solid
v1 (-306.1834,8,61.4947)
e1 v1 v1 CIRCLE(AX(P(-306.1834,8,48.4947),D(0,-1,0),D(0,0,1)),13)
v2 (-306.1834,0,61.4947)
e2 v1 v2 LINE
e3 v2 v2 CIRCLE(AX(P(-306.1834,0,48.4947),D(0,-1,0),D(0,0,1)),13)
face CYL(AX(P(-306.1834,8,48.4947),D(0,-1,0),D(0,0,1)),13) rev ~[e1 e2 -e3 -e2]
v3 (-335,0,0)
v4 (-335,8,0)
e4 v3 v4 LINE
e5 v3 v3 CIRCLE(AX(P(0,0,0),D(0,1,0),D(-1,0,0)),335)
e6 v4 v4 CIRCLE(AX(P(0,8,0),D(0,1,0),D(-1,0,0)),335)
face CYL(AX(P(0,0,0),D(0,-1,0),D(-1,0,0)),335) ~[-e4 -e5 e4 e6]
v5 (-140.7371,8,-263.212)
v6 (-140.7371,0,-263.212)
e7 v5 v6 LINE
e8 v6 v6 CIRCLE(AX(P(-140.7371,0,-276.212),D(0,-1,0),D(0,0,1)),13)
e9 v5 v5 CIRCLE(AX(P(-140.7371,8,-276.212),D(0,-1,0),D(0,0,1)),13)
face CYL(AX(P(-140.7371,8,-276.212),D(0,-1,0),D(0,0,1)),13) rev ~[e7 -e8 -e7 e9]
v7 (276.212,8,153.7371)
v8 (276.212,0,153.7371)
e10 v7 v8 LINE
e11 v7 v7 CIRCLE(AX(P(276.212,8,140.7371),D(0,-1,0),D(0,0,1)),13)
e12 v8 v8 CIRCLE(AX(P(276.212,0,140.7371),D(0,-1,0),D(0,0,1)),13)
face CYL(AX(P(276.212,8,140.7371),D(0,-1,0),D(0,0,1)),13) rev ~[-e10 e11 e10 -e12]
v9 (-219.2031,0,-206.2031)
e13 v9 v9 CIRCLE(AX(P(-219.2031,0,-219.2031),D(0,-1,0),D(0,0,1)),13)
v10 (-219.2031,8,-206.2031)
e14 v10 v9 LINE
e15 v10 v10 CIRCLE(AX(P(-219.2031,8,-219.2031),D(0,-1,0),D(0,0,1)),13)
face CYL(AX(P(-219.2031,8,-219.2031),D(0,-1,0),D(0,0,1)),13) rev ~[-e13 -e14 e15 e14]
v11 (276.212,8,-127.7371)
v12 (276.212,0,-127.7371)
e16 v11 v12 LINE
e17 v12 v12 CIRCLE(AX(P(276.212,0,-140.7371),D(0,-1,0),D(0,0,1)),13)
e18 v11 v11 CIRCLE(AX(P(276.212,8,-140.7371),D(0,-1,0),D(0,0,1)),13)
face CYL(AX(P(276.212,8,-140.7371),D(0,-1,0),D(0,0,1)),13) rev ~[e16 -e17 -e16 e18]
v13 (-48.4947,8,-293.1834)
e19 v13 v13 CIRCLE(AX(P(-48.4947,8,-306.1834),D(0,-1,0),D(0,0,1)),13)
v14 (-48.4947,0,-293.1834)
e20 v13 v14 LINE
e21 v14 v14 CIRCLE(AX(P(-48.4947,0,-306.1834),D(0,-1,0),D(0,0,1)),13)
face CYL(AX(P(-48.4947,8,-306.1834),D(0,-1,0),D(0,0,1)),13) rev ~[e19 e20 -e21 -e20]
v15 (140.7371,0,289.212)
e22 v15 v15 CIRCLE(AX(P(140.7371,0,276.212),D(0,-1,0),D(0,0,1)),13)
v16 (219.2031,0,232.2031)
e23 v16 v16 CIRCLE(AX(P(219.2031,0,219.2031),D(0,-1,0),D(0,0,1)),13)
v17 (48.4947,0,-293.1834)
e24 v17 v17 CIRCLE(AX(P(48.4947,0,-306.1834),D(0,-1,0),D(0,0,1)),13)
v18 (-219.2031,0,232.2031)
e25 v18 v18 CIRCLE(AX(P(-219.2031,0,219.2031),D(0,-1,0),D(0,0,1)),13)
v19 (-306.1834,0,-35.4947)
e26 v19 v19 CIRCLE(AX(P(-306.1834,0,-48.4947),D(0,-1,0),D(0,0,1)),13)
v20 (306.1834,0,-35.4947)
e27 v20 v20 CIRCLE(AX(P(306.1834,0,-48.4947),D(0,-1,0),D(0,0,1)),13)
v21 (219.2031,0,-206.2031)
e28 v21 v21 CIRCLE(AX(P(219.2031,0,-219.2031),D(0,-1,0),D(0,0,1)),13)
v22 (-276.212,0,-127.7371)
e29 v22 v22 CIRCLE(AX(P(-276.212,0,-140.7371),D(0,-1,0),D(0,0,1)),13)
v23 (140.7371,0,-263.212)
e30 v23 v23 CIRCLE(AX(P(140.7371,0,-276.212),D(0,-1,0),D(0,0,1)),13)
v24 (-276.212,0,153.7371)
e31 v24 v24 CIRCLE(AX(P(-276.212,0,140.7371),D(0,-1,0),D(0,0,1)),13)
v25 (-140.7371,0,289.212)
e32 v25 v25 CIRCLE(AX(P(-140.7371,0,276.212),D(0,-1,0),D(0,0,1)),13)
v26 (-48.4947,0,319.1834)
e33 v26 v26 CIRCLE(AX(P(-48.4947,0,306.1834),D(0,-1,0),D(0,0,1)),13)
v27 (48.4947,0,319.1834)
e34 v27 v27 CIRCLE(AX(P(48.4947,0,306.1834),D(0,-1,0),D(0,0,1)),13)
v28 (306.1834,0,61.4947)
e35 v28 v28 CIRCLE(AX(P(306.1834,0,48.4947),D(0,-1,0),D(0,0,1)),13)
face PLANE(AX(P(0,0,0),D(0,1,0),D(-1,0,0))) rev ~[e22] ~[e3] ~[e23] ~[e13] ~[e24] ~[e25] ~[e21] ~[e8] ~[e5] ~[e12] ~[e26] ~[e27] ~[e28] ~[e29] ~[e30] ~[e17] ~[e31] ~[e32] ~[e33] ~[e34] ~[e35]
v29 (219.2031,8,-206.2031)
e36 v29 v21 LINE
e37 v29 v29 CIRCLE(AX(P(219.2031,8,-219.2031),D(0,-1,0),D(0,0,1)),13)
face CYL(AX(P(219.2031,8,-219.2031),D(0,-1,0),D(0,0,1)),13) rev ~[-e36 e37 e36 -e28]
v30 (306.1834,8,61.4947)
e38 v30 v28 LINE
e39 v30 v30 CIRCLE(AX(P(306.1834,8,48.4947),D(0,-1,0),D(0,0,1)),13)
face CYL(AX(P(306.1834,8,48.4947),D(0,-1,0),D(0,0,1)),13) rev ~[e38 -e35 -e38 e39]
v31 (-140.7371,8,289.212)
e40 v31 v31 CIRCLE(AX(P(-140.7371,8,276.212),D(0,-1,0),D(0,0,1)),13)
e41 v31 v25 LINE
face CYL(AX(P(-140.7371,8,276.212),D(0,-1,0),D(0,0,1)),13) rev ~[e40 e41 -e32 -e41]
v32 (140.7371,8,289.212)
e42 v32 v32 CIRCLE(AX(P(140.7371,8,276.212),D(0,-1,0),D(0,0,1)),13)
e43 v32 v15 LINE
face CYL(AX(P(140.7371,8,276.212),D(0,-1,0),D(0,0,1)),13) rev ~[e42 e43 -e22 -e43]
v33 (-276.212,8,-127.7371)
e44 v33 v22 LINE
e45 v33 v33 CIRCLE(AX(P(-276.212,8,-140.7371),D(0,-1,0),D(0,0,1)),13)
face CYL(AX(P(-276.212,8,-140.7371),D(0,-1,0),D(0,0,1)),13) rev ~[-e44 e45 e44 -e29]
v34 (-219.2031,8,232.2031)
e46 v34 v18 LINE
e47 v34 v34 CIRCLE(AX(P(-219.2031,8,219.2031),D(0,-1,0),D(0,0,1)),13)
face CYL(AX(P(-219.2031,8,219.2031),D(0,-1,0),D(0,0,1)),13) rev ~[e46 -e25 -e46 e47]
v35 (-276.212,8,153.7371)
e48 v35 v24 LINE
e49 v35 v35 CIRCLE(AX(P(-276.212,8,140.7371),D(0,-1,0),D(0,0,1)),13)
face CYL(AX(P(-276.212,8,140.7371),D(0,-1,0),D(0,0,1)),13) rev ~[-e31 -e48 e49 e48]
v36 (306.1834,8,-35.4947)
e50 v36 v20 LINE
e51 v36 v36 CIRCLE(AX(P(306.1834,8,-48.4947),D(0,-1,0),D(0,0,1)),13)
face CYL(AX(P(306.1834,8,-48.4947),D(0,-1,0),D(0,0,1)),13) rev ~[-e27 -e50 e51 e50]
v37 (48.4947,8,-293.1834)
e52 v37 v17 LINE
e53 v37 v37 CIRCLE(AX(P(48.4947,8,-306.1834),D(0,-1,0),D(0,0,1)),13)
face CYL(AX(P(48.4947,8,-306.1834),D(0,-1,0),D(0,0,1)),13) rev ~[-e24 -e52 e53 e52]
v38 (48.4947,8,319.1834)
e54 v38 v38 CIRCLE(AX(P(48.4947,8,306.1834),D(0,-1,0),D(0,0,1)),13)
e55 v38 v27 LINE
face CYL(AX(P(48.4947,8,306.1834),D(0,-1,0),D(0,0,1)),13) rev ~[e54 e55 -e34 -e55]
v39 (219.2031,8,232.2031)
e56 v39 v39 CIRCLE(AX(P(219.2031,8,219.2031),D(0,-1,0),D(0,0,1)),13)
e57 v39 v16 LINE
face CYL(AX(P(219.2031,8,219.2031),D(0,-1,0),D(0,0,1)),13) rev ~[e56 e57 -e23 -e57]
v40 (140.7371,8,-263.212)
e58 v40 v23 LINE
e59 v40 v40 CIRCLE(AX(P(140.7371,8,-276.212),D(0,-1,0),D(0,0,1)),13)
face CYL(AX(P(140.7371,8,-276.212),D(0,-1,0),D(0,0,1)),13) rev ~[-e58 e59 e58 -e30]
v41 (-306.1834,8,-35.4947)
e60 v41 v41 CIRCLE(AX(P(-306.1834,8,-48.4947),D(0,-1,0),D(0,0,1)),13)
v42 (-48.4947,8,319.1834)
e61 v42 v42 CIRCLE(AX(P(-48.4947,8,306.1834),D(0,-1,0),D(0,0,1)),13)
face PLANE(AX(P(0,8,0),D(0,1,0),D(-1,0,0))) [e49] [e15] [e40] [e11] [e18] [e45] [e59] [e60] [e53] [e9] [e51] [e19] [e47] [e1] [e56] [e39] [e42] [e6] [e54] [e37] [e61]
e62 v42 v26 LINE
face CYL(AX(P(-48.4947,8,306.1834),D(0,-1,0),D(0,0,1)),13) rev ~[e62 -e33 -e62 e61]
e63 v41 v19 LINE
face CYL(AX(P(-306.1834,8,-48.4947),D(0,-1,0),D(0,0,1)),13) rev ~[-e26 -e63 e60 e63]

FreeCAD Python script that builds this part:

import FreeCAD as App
import Part
import Sketcher

V = App.Vector

doc = App.newDocument("Part")
body = doc.addObject("PartDesign::Body", "Body")

sketch1 = body.newObject("Sketcher::SketchObject", "Sketch")
sketch1.AttachmentSupport = (doc.getObject("XZ_Plane"), [""])
sketch1.MapMode = "FlatFace"
sketch1.addGeometry(Part.Circle(V(0, 0, 0), V(0, 0, 1), 335), False)
sketch1.addConstraint([
    Sketcher.Constraint("Coincident", 0, 3, -1, 1),
    Sketcher.Constraint("Diameter", 0, 670.0),
])
pad1 = body.newObject("PartDesign::Pad", "Pad")
pad1.Profile = sketch1
pad1.Length = 8
pad1.Reversed = True

sketch2 = body.newObject("Sketcher::SketchObject", "Sketch001")
sketch2.AttachmentSupport = (doc.getObject("XZ_Plane"), [""])
sketch2.MapMode = "FlatFace"
sketch2.AttachmentOffset = App.Placement(V(0, 0, -8), App.Rotation())
sketch2.addGeometry([
    Part.Circle(V(-306.1834, -48.4947, 0), V(0, 0, 1), 13),
    Part.Circle(V(-306.1834, 48.4947, 0), V(0, 0, 1), 13),
    Part.Circle(V(-276.212, 140.7371, 0), V(0, 0, 1), 13),
    Part.Circle(V(-219.2031, 219.2031, 0), V(0, 0, 1), 13),
    Part.Circle(V(-140.7371, 276.212, 0), V(0, 0, 1), 13),
    Part.Circle(V(-48.4947, 306.1834, 0), V(0, 0, 1), 13),
    Part.Circle(V(48.4947, 306.1834, 0), V(0, 0, 1), 13),
    Part.Circle(V(140.7371, 276.212, 0), V(0, 0, 1), 13),
    Part.Circle(V(219.2031, 219.2031, 0), V(0, 0, 1), 13),
    Part.Circle(V(276.212, 140.7371, 0), V(0, 0, 1), 13),
    Part.Circle(V(306.1834, 48.4947, 0), V(0, 0, 1), 13),
    Part.Circle(V(306.1834, -48.4947, 0), V(0, 0, 1), 13),
    Part.Circle(V(276.212, -140.7371, 0), V(0, 0, 1), 13),
    Part.Circle(V(219.2031, -219.2031, 0), V(0, 0, 1), 13),
    Part.Circle(V(140.7371, -276.212, 0), V(0, 0, 1), 13),
    Part.Circle(V(48.4947, -306.1834, 0), V(0, 0, 1), 13),
    Part.Circle(V(-48.4947, -306.1834, 0), V(0, 0, 1), 13),
    Part.Circle(V(-140.7371, -276.212, 0), V(0, 0, 1), 13),
    Part.Circle(V(-219.2031, -219.2031, 0), V(0, 0, 1), 13),
    Part.Circle(V(-276.212, -140.7371, 0), V(0, 0, 1), 13),
], False)
sketch2.addConstraint([
    Sketcher.Constraint("Equal", 0, 1),
    Sketcher.Constraint("Equal", 1, 2),
    Sketcher.Constraint("Equal", 2, 3),
    Sketcher.Constraint("Equal", 3, 4),
    Sketcher.Constraint("Equal", 4, 5),
    Sketcher.Constraint("Equal", 5, 6),
    Sketcher.Constraint("Equal", 6, 7),
    Sketcher.Constraint("Equal", 7, 8),
    Sketcher.Constraint("Equal", 8, 9),
    Sketcher.Constraint("Equal", 9, 10),
    Sketcher.Constraint("Equal", 10, 11),
    Sketcher.Constraint("Equal", 11, 12),
    Sketcher.Constraint("Equal", 12, 13),
    Sketcher.Constraint("Equal", 13, 14),
    Sketcher.Constraint("Equal", 14, 15),
    Sketcher.Constraint("Equal", 15, 16),
    Sketcher.Constraint("Equal", 16, 17),
    Sketcher.Constraint("Equal", 17, 18),
    Sketcher.Constraint("Equal", 18, 19),
    Sketcher.Constraint("Symmetric", 0, 3, 10, 3, -1, 1),
    Sketcher.Constraint("Symmetric", 1, 3, 11, 3, -1, 1),
    Sketcher.Constraint("Symmetric", 2, 3, 12, 3, -1, 1),
    Sketcher.Constraint("Symmetric", 3, 3, 13, 3, -1, 1),
    Sketcher.Constraint("Symmetric", 4, 3, 14, 3, -1, 1),
    Sketcher.Constraint("Symmetric", 5, 3, 15, 3, -1, 1),
    Sketcher.Constraint("Symmetric", 6, 3, 16, 3, -1, 1),
    Sketcher.Constraint("Symmetric", 7, 3, 17, 3, -1, 1),
    Sketcher.Constraint("Symmetric", 8, 3, 18, 3, -1, 1),
    Sketcher.Constraint("Symmetric", 9, 3, 19, 3, -1, 1),
    Sketcher.Constraint("Symmetric", 5, 3, 6, 3, -2),
    Sketcher.Constraint("Symmetric", 4, 3, 7, 3, -2),
    Sketcher.Constraint("Symmetric", 3, 3, 8, 3, -2),
    Sketcher.Constraint("Symmetric", 2, 3, 9, 3, -2),
    Sketcher.Constraint("Symmetric", 1, 3, 10, 3, -2),
    Sketcher.Constraint("Diameter", 0, 26.0),
    Sketcher.Constraint("DistanceX", 2, 3, -1, 1, 276.212),
    Sketcher.Constraint("DistanceY", -1, 1, 2, 3, 140.737),
    Sketcher.Constraint("DistanceX", 3, 3, -1, 1, 219.203),
    Sketcher.Constraint("DistanceY", -1, 1, 3, 3, 219.203),
    Sketcher.Constraint("DistanceX", 4, 3, -1, 1, 140.737),
    Sketcher.Constraint("DistanceY", -1, 1, 4, 3, 276.212),
    Sketcher.Constraint("DistanceY", 0, 3, 5, 3, 354.678),
    Sketcher.Constraint("DistanceX", 1, 3, 6, 3, 354.678),
    Sketcher.Constraint("DistanceX", 0, 3, -1, 1, 306.1834),
    Sketcher.Constraint("DistanceY", 0, 3, -1, 1, 48.4947),
])
doc.recompute()
hole = body.newObject("PartDesign::Hole", "Hole")
hole.Profile = sketch2
hole.ThreadType = "None"
hole.Diameter = 26
hole.DepthType = "ThroughAll"
hole.Reversed = True

doc.recompute()
